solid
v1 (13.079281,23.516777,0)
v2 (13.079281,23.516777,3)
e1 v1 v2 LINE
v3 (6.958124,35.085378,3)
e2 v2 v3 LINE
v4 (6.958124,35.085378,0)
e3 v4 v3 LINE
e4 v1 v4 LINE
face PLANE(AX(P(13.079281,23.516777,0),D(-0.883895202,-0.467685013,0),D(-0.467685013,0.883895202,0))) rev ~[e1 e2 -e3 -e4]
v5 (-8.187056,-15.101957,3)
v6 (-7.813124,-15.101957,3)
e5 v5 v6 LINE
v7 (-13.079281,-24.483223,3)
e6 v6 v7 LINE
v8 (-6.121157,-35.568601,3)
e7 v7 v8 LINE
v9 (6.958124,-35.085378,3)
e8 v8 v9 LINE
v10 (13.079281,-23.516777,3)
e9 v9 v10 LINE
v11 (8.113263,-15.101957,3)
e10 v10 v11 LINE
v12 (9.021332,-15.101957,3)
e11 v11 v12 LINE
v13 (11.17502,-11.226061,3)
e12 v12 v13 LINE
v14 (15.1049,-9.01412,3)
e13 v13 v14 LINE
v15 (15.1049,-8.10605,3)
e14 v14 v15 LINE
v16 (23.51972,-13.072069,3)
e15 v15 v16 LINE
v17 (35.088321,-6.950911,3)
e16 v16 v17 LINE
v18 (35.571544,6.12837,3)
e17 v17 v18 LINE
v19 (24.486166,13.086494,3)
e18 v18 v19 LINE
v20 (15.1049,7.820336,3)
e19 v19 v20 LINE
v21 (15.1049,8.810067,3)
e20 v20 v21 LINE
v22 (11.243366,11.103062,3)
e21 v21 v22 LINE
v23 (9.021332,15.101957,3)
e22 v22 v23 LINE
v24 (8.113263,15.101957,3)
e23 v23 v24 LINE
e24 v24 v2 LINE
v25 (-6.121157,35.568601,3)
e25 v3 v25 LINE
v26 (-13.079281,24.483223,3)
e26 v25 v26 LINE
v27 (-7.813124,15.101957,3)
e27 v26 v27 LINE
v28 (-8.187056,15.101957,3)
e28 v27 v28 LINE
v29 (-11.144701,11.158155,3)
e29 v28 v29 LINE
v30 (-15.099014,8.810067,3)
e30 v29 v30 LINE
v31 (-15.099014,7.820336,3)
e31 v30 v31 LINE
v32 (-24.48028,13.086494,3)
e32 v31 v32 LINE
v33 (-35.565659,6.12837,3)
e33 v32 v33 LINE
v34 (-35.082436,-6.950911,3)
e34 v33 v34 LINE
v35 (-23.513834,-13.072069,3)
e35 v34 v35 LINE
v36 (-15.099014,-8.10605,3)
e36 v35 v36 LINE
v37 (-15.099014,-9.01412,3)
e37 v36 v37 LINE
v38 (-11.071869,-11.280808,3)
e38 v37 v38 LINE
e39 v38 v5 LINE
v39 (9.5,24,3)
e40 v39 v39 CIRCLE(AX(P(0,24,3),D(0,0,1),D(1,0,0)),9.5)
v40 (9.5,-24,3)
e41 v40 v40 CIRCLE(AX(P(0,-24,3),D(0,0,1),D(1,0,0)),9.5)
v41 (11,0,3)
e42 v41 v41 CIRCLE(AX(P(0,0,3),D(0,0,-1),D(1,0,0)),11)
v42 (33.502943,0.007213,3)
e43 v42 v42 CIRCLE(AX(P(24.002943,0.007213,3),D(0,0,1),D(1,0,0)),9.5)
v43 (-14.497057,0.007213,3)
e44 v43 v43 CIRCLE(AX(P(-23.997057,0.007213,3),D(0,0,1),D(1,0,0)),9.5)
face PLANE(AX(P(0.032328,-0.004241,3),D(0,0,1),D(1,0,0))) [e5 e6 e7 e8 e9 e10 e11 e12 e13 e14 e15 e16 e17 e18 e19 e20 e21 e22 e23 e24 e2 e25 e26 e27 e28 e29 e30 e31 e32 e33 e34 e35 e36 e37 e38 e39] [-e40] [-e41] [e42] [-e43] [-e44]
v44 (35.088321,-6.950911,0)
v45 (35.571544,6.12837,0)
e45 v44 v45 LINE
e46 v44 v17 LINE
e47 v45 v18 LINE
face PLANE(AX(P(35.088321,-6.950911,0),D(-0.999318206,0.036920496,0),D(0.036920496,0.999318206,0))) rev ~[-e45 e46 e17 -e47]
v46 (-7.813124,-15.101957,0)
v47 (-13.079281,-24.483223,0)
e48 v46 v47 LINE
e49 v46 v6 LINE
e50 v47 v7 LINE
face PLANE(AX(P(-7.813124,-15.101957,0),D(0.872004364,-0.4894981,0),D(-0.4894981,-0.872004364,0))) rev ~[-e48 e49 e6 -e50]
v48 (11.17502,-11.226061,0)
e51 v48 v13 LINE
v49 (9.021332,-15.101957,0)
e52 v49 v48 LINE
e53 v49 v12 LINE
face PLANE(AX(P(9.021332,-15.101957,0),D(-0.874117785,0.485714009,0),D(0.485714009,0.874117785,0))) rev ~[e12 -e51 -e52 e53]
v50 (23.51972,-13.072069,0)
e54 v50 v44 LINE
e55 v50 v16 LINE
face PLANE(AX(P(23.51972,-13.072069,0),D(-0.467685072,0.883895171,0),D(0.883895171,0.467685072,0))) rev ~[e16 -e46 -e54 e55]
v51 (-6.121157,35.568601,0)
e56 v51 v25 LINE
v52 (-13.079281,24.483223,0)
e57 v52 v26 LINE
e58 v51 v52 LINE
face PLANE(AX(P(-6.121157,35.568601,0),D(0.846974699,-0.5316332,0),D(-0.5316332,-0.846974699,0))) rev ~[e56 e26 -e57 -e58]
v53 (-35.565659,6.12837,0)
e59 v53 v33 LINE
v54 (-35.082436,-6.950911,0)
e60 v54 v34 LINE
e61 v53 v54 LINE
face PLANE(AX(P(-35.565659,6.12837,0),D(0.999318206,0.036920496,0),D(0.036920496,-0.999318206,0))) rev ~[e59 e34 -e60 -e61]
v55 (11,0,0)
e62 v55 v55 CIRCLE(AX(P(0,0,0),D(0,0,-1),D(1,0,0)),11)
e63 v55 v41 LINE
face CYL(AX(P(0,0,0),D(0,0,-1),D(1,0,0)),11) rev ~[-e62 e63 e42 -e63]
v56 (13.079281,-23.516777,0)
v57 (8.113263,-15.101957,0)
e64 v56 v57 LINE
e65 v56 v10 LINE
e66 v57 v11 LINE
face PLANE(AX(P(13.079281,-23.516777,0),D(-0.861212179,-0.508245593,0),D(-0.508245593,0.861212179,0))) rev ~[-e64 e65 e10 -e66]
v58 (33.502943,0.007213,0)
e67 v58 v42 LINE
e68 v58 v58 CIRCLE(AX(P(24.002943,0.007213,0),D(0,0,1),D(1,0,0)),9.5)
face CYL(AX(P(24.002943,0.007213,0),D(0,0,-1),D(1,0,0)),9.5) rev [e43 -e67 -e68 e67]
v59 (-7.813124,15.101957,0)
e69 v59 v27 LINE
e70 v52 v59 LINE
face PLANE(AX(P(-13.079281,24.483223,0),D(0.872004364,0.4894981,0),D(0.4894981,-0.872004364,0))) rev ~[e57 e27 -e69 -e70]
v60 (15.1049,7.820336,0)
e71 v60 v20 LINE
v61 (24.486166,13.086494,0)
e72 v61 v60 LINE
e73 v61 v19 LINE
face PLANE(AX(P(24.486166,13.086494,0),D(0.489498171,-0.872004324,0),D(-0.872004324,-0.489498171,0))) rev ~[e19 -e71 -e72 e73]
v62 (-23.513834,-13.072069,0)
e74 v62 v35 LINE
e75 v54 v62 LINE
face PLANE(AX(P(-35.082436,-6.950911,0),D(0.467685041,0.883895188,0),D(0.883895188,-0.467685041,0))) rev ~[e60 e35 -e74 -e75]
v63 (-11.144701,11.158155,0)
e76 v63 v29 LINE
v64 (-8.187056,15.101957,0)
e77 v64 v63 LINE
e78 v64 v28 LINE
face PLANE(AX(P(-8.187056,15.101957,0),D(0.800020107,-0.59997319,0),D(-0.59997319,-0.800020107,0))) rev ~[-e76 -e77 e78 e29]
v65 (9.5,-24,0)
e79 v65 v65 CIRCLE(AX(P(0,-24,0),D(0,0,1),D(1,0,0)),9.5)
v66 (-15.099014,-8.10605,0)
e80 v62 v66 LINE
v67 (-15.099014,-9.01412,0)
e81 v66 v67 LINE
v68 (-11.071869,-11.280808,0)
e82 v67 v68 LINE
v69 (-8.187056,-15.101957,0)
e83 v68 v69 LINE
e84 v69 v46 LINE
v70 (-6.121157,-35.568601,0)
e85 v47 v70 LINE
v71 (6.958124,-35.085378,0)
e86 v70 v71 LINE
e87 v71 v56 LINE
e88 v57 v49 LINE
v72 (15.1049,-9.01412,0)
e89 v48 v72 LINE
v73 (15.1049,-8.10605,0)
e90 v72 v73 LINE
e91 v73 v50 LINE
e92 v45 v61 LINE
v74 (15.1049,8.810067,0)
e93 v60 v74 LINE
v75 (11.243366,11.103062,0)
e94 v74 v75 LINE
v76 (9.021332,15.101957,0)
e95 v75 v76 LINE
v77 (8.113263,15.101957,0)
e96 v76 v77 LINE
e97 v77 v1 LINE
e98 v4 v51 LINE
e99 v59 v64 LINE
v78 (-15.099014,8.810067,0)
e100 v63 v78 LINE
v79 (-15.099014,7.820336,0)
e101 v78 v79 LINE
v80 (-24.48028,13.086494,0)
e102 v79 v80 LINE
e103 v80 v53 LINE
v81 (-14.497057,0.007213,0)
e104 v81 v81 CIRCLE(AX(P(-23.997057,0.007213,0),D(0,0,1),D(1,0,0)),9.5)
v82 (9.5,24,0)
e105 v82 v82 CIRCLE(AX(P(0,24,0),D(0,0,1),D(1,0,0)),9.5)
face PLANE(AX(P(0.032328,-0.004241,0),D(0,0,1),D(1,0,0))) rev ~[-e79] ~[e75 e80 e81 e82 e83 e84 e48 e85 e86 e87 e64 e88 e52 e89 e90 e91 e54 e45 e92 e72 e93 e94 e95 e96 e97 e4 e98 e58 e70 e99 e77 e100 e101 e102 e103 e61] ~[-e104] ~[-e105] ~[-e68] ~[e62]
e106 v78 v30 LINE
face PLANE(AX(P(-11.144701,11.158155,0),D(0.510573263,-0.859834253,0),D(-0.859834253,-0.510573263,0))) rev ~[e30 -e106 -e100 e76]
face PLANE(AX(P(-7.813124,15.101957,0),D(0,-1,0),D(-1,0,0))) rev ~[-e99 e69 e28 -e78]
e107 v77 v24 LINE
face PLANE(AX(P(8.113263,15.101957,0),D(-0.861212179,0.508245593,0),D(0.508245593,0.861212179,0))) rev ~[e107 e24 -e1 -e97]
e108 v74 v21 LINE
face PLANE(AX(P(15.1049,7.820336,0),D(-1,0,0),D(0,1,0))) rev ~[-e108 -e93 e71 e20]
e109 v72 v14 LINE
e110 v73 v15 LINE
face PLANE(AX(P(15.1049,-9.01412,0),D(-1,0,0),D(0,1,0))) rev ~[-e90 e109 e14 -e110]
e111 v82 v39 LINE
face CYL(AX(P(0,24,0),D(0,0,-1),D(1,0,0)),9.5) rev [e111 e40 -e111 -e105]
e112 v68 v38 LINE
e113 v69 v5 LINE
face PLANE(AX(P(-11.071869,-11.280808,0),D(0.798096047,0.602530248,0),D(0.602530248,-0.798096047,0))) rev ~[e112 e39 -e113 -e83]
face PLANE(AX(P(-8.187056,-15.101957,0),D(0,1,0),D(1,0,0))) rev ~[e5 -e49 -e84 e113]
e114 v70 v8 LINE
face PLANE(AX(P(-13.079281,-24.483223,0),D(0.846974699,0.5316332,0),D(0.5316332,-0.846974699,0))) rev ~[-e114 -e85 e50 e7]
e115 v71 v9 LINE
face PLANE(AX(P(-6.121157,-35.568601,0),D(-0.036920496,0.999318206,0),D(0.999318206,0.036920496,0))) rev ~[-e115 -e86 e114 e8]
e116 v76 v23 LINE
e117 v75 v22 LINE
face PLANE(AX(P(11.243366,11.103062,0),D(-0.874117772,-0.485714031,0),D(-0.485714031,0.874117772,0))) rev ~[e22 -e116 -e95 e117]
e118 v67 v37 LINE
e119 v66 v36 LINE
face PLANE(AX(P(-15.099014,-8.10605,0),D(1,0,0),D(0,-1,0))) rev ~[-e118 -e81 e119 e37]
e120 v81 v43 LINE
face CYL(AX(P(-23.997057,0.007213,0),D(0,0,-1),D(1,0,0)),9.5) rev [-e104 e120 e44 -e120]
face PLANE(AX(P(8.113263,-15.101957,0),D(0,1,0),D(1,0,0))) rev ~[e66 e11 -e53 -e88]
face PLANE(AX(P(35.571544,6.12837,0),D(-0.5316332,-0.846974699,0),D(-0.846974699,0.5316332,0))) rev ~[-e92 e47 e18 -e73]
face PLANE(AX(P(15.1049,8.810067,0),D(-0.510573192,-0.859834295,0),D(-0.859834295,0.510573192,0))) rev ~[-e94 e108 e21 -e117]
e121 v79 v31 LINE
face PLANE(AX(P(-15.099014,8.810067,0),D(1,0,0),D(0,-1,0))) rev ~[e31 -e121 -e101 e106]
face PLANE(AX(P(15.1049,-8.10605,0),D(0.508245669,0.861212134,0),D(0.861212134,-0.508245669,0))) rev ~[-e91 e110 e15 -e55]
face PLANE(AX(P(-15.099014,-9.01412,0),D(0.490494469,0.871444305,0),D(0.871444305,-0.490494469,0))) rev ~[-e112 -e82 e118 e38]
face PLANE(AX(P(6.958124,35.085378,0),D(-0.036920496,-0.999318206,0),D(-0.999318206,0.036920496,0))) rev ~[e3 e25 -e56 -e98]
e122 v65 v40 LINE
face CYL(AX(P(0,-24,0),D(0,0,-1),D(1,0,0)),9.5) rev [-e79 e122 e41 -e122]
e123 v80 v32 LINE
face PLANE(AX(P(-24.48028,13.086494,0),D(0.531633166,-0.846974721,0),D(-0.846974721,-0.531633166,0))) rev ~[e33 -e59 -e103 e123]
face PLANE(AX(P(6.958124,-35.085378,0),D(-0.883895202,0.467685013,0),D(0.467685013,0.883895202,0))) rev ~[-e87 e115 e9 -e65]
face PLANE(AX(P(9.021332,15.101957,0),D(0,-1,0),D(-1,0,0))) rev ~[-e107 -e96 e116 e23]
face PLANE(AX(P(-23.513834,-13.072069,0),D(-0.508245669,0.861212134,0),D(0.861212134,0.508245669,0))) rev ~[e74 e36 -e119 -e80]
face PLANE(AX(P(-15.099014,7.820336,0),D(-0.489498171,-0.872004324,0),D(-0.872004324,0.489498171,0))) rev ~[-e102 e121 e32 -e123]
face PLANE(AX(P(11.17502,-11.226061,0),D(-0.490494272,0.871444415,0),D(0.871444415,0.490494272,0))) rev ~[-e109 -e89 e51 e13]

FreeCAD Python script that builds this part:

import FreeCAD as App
import Part
import Sketcher

V = App.Vector


def add_polygon(sketch, points):
    """Adds a closed chain of lines whose ends are joined by coincident constraints."""
    first, n = sketch.GeometryCount, len(points)
    for a, b in zip(points, points[1:] + points[:1]):
        sketch.addGeometry(Part.LineSegment(App.Vector(*a, 0), App.Vector(*b, 0)), False)
    for i in range(n):
        sketch.addConstraint(Sketcher.Constraint("Coincident", first + i, 2, first + (i + 1) % n, 1))

doc = App.newDocument("Part")
body = doc.addObject("PartDesign::Body", "Body")

sketch1 = doc.addObject("Sketcher::SketchObject", "Sketch")
body.addObject(sketch1)
sketch1.AttachmentSupport = (doc.XY_Plane, [""])
sketch1.MapMode = "FlatFace"
add_polygon(sketch1, [(11.243366, 11.103062), (9.021332, 15.101957), (8.113263, 15.101957), (13.079281, 23.516777), (6.958124, 35.085378), (-6.121157, 35.568601), (-13.079281, 24.483223), (-7.813124, 15.101957), (-8.187056, 15.101957), (-11.144701, 11.158155), (-15.099014, 8.810067), (-15.099014, 7.820336), (-24.48028, 13.086494), (-35.565659, 6.12837), (-35.082436, -6.950911), (-23.513834, -13.072069), (-15.099014, -8.10605), (-15.099014, -9.01412), (-11.071869, -11.280808), (-8.187056, -15.101957), (-7.813124, -15.101957), (-13.079281, -24.483223), (-6.121157, -35.568601), (6.958124, -35.085378), (13.079281, -23.516777), (8.113263, -15.101957), (9.021332, -15.101957), (11.17502, -11.226061), (15.1049, -9.01412), (15.1049, -8.10605), (23.51972, -13.072069), (35.088321, -6.950911), (35.571544, 6.12837), (24.486166, 13.086494), (15.1049, 7.820336), (15.1049, 8.810067)])
sketch1.addGeometry(Part.Circle(V(0, -24, 0), V(0, 0, 1), 9.5), False)
sketch1.addGeometry(Part.Circle(V(-23.997057, 0.007213, 0), V(0, 0, 1), 9.5), False)
sketch1.addGeometry(Part.Circle(V(0, 0, 0), V(0, 0, 1), 11), False)
sketch1.addGeometry(Part.Circle(V(0, 24, 0), V(0, 0, 1), 9.5), False)
sketch1.addGeometry(Part.Circle(V(24.002943, 0.007213, 0), V(0, 0, 1), 9.5), False)
sketch1.addConstraint(Sketcher.Constraint("Horizontal", 1))
sketch1.addConstraint(Sketcher.Constraint("Horizontal", 7))
sketch1.addConstraint(Sketcher.Constraint("Vertical", 10))
sketch1.addConstraint(Sketcher.Constraint("Vertical", 16))
sketch1.addConstraint(Sketcher.Constraint("Horizontal", 19))
sketch1.addConstraint(Sketcher.Constraint("Horizontal", 25))
sketch1.addConstraint(Sketcher.Constraint("Vertical", 28))
sketch1.addConstraint(Sketcher.Constraint("Vertical", 34))
sketch1.addConstraint(Sketcher.Constraint("Coincident", 38, 3, -1, 1))
sketch1.addConstraint(Sketcher.Constraint("PointOnObject", 36, 3, -2))
sketch1.addConstraint(Sketcher.Constraint("PointOnObject", 39, 3, -2))
sketch1.addConstraint(Sketcher.Constraint("Diameter", 36, 19.0))
sketch1.addConstraint(Sketcher.Constraint("Diameter", 37, 19.0))
sketch1.addConstraint(Sketcher.Constraint("Diameter", 38, 22.0))
sketch1.addConstraint(Sketcher.Constraint("Diameter", 39, 19.0))
sketch1.addConstraint(Sketcher.Constraint("Diameter", 40, 19.0))
sketch1.addConstraint(Sketcher.Constraint("DistanceY", 36, 3, -1, 1, 24.0))
sketch1.addConstraint(Sketcher.Constraint("DistanceY", -1, 1, 39, 3, 24.0))
sketch1.addConstraint(Sketcher.Constraint("DistanceX", 37, 3, 40, 3, 48.0))
sketch1.addConstraint(Sketcher.Constraint("DistanceX", 11, 2, 5, 2, 11.400999))
sketch1.addConstraint(Sketcher.Constraint("DistanceX", 1, 2, 1, 1, 0.908069))
sketch1.addConstraint(Sketcher.Constraint("DistanceX", 7, 2, 7, 1, 0.373932))
sketch1.addConstraint(Sketcher.Constraint("DistanceX", 19, 1, 19, 2, 0.373932))
sketch1.addConstraint(Sketcher.Constraint("DistanceX", 25, 1, 25, 2, 0.908069))
sketch1.addConstraint(Sketcher.Constraint("DistanceY", 10, 2, 10, 1, 0.989731))
sketch1.addConstraint(Sketcher.Constraint("DistanceY", 16, 2, 16, 1, 0.90807))
sketch1.addConstraint(Sketcher.Constraint("DistanceY", 28, 1, 28, 2, 0.90807))
sketch1.addConstraint(Sketcher.Constraint("DistanceY", 34, 1, 34, 2, 0.989731))
sketch1.addConstraint(Sketcher.Constraint("DistanceY", -1, 1, 4, 2, 35.568601))
sketch1.addConstraint(Sketcher.Constraint("DistanceX", 8, 2, -1, 1, 11.144701))
sketch1.addConstraint(Sketcher.Constraint("DistanceY", 21, 2, -1, 1, 35.568601))
sketch1.addConstraint(Sketcher.Constraint("DistanceX", -1, 1, 27, 2, 15.1049))
sketch1.addConstraint(Sketcher.Constraint("DistanceX", -1, 1, 33, 2, 15.1049))
sketch1.addConstraint(Sketcher.Constraint("DistanceY", 2, 2, 3, 2, 11.568601))
sketch1.addConstraint(Sketcher.Constraint("DistanceY", 8, 2, 7, 2, 3.943802))
sketch1.addConstraint(Sketcher.Constraint("DistanceX", 12, 2, 37, 3, 11.568602))
sketch1.addConstraint(Sketcher.Constraint("DistanceX", 18, 2, 21, 2, 2.065899))
sketch1.addConstraint(Sketcher.Constraint("DistanceY", 22, 2, 23, 2, 11.568601))
sketch1.addConstraint(Sketcher.Constraint("DistanceX", 26, 2, 29, 2, 12.3447))
sketch1.addConstraint(Sketcher.Constraint("DistanceX", 29, 2, 30, 2, 11.568601))
sketch1.addConstraint(Sketcher.Constraint("DistanceX", 40, 3, 31, 2, 11.568601))
sketch1.addConstraint(Sketcher.Constraint("Distance", 0, 4.574778))
sketch1.addConstraint(Sketcher.Constraint("Distance", 6, 10.758279))
sketch1.addConstraint(Sketcher.Constraint("Distance", 8, 4.929629))
sketch1.addConstraint(Sketcher.Constraint("Distance", 11, 10.758279))
sketch1.addConstraint(Sketcher.Constraint("Distance", 17, 4.621231))
sketch1.addConstraint(Sketcher.Constraint("Distance", 18, 4.787831))
sketch1.addConstraint(Sketcher.Constraint("Distance", 20, 10.758279))
sketch1.addConstraint(Sketcher.Constraint("Distance", 33, 10.758279))
sketch1.addConstraint(Sketcher.Constraint("Distance", 35, 4.491021))
sketch1.addConstraint(Sketcher.Constraint("DistanceX", -1, 1, 0, 2, 9.021332))
sketch1.addConstraint(Sketcher.Constraint("DistanceX", -1, 1, 2, 2, 13.079281))
sketch1.addConstraint(Sketcher.Constraint("DistanceX", 5, 2, -1, 1, 13.079281))
sketch1.addConstraint(Sketcher.Constraint("DistanceX", 12, 2, -1, 1, 35.565659))
sketch1.addConstraint(Sketcher.Constraint("DistanceY", -1, 1, 12, 2, 6.12837))
sketch1.addConstraint(Sketcher.Constraint("DistanceY", 13, 2, -1, 1, 6.950911))
sketch1.addConstraint(Sketcher.Constraint("DistanceY", 14, 2, -1, 1, 13.072069))
sketch1.addConstraint(Sketcher.Constraint("DistanceY", 15, 2, -1, 1, 8.10605))
sketch1.addConstraint(Sketcher.Constraint("DistanceX", 17, 2, -1, 1, 11.071869))
sketch1.addConstraint(Sketcher.Constraint("DistanceX", 20, 2, -1, 1, 13.079281))
sketch1.addConstraint(Sketcher.Constraint("DistanceX", -1, 1, 23, 2, 13.079281))
sketch1.addConstraint(Sketcher.Constraint("DistanceX", -1, 1, 25, 2, 9.021332))
sketch1.addConstraint(Sketcher.Constraint("DistanceX", -1, 1, 26, 2, 11.17502))
sketch1.addConstraint(Sketcher.Constraint("DistanceY", 26, 2, -1, 1, 11.226061))
sketch1.addConstraint(Sketcher.Constraint("DistanceY", 27, 2, -1, 1, 9.01412))
sketch1.addConstraint(Sketcher.Constraint("DistanceY", 29, 2, -1, 1, 13.072069))
sketch1.addConstraint(Sketcher.Constraint("DistanceY", 30, 2, -1, 1, 6.950911))
sketch1.addConstraint(Sketcher.Constraint("DistanceY", -1, 1, 31, 2, 6.12837))
sketch1.addConstraint(Sketcher.Constraint("DistanceY", 0, 2, 2, 2, 8.41482))
sketch1.addConstraint(Sketcher.Constraint("DistanceX", 3, 2, 1, 2, 1.155139))
sketch1.addConstraint(Sketcher.Constraint("DistanceX", 4, 2, 3, 2, 13.079281))
sketch1.addConstraint(Sketcher.Constraint("DistanceY", 5, 2, 4, 2, 11.085378))
sketch1.addConstraint(Sketcher.Constraint("DistanceY", 9, 2, 8, 2, 2.348088))
sketch1.addConstraint(Sketcher.Constraint("DistanceX", 9, 2, 7, 2, 6.911958))
sketch1.addConstraint(Sketcher.Constraint("DistanceY", 37, 3, 11, 2, 13.079281))
sketch1.addConstraint(Sketcher.Constraint("DistanceX", 13, 2, 37, 3, 11.085379))
sketch1.addConstraint(Sketcher.Constraint("DistanceX", 14, 2, 10, 2, 8.41482))
sketch1.addConstraint(Sketcher.Constraint("DistanceX", 14, 2, 15, 2, 8.41482))
sketch1.addConstraint(Sketcher.Constraint("DistanceY", 18, 2, 17, 2, 3.821149))
sketch1.addConstraint(Sketcher.Constraint("DistanceX", 21, 2, 22, 2, 13.079281))
sketch1.addConstraint(Sketcher.Constraint("DistanceY", 22, 2, 19, 2, 19.983421))
sketch1.addConstraint(Sketcher.Constraint("DistanceY", 23, 2, 24, 2, 8.41482))
sketch1.addConstraint(Sketcher.Constraint("DistanceX", 32, 2, 31, 2, 11.085378))
sketch1.addConstraint(Sketcher.Constraint("DistanceY", 40, 3, 32, 2, 13.079281))
sketch1.addConstraint(Sketcher.Constraint("DistanceY", 33, 2, 0, 2, 7.281621))
sketch1.addConstraint(Sketcher.Constraint("Distance", 4, 13.088204))
pad1 = doc.addObject("PartDesign::Pad", "Pad")
body.addObject(pad1)
pad1.Profile = sketch1
pad1.Length = 3

doc.recompute()
